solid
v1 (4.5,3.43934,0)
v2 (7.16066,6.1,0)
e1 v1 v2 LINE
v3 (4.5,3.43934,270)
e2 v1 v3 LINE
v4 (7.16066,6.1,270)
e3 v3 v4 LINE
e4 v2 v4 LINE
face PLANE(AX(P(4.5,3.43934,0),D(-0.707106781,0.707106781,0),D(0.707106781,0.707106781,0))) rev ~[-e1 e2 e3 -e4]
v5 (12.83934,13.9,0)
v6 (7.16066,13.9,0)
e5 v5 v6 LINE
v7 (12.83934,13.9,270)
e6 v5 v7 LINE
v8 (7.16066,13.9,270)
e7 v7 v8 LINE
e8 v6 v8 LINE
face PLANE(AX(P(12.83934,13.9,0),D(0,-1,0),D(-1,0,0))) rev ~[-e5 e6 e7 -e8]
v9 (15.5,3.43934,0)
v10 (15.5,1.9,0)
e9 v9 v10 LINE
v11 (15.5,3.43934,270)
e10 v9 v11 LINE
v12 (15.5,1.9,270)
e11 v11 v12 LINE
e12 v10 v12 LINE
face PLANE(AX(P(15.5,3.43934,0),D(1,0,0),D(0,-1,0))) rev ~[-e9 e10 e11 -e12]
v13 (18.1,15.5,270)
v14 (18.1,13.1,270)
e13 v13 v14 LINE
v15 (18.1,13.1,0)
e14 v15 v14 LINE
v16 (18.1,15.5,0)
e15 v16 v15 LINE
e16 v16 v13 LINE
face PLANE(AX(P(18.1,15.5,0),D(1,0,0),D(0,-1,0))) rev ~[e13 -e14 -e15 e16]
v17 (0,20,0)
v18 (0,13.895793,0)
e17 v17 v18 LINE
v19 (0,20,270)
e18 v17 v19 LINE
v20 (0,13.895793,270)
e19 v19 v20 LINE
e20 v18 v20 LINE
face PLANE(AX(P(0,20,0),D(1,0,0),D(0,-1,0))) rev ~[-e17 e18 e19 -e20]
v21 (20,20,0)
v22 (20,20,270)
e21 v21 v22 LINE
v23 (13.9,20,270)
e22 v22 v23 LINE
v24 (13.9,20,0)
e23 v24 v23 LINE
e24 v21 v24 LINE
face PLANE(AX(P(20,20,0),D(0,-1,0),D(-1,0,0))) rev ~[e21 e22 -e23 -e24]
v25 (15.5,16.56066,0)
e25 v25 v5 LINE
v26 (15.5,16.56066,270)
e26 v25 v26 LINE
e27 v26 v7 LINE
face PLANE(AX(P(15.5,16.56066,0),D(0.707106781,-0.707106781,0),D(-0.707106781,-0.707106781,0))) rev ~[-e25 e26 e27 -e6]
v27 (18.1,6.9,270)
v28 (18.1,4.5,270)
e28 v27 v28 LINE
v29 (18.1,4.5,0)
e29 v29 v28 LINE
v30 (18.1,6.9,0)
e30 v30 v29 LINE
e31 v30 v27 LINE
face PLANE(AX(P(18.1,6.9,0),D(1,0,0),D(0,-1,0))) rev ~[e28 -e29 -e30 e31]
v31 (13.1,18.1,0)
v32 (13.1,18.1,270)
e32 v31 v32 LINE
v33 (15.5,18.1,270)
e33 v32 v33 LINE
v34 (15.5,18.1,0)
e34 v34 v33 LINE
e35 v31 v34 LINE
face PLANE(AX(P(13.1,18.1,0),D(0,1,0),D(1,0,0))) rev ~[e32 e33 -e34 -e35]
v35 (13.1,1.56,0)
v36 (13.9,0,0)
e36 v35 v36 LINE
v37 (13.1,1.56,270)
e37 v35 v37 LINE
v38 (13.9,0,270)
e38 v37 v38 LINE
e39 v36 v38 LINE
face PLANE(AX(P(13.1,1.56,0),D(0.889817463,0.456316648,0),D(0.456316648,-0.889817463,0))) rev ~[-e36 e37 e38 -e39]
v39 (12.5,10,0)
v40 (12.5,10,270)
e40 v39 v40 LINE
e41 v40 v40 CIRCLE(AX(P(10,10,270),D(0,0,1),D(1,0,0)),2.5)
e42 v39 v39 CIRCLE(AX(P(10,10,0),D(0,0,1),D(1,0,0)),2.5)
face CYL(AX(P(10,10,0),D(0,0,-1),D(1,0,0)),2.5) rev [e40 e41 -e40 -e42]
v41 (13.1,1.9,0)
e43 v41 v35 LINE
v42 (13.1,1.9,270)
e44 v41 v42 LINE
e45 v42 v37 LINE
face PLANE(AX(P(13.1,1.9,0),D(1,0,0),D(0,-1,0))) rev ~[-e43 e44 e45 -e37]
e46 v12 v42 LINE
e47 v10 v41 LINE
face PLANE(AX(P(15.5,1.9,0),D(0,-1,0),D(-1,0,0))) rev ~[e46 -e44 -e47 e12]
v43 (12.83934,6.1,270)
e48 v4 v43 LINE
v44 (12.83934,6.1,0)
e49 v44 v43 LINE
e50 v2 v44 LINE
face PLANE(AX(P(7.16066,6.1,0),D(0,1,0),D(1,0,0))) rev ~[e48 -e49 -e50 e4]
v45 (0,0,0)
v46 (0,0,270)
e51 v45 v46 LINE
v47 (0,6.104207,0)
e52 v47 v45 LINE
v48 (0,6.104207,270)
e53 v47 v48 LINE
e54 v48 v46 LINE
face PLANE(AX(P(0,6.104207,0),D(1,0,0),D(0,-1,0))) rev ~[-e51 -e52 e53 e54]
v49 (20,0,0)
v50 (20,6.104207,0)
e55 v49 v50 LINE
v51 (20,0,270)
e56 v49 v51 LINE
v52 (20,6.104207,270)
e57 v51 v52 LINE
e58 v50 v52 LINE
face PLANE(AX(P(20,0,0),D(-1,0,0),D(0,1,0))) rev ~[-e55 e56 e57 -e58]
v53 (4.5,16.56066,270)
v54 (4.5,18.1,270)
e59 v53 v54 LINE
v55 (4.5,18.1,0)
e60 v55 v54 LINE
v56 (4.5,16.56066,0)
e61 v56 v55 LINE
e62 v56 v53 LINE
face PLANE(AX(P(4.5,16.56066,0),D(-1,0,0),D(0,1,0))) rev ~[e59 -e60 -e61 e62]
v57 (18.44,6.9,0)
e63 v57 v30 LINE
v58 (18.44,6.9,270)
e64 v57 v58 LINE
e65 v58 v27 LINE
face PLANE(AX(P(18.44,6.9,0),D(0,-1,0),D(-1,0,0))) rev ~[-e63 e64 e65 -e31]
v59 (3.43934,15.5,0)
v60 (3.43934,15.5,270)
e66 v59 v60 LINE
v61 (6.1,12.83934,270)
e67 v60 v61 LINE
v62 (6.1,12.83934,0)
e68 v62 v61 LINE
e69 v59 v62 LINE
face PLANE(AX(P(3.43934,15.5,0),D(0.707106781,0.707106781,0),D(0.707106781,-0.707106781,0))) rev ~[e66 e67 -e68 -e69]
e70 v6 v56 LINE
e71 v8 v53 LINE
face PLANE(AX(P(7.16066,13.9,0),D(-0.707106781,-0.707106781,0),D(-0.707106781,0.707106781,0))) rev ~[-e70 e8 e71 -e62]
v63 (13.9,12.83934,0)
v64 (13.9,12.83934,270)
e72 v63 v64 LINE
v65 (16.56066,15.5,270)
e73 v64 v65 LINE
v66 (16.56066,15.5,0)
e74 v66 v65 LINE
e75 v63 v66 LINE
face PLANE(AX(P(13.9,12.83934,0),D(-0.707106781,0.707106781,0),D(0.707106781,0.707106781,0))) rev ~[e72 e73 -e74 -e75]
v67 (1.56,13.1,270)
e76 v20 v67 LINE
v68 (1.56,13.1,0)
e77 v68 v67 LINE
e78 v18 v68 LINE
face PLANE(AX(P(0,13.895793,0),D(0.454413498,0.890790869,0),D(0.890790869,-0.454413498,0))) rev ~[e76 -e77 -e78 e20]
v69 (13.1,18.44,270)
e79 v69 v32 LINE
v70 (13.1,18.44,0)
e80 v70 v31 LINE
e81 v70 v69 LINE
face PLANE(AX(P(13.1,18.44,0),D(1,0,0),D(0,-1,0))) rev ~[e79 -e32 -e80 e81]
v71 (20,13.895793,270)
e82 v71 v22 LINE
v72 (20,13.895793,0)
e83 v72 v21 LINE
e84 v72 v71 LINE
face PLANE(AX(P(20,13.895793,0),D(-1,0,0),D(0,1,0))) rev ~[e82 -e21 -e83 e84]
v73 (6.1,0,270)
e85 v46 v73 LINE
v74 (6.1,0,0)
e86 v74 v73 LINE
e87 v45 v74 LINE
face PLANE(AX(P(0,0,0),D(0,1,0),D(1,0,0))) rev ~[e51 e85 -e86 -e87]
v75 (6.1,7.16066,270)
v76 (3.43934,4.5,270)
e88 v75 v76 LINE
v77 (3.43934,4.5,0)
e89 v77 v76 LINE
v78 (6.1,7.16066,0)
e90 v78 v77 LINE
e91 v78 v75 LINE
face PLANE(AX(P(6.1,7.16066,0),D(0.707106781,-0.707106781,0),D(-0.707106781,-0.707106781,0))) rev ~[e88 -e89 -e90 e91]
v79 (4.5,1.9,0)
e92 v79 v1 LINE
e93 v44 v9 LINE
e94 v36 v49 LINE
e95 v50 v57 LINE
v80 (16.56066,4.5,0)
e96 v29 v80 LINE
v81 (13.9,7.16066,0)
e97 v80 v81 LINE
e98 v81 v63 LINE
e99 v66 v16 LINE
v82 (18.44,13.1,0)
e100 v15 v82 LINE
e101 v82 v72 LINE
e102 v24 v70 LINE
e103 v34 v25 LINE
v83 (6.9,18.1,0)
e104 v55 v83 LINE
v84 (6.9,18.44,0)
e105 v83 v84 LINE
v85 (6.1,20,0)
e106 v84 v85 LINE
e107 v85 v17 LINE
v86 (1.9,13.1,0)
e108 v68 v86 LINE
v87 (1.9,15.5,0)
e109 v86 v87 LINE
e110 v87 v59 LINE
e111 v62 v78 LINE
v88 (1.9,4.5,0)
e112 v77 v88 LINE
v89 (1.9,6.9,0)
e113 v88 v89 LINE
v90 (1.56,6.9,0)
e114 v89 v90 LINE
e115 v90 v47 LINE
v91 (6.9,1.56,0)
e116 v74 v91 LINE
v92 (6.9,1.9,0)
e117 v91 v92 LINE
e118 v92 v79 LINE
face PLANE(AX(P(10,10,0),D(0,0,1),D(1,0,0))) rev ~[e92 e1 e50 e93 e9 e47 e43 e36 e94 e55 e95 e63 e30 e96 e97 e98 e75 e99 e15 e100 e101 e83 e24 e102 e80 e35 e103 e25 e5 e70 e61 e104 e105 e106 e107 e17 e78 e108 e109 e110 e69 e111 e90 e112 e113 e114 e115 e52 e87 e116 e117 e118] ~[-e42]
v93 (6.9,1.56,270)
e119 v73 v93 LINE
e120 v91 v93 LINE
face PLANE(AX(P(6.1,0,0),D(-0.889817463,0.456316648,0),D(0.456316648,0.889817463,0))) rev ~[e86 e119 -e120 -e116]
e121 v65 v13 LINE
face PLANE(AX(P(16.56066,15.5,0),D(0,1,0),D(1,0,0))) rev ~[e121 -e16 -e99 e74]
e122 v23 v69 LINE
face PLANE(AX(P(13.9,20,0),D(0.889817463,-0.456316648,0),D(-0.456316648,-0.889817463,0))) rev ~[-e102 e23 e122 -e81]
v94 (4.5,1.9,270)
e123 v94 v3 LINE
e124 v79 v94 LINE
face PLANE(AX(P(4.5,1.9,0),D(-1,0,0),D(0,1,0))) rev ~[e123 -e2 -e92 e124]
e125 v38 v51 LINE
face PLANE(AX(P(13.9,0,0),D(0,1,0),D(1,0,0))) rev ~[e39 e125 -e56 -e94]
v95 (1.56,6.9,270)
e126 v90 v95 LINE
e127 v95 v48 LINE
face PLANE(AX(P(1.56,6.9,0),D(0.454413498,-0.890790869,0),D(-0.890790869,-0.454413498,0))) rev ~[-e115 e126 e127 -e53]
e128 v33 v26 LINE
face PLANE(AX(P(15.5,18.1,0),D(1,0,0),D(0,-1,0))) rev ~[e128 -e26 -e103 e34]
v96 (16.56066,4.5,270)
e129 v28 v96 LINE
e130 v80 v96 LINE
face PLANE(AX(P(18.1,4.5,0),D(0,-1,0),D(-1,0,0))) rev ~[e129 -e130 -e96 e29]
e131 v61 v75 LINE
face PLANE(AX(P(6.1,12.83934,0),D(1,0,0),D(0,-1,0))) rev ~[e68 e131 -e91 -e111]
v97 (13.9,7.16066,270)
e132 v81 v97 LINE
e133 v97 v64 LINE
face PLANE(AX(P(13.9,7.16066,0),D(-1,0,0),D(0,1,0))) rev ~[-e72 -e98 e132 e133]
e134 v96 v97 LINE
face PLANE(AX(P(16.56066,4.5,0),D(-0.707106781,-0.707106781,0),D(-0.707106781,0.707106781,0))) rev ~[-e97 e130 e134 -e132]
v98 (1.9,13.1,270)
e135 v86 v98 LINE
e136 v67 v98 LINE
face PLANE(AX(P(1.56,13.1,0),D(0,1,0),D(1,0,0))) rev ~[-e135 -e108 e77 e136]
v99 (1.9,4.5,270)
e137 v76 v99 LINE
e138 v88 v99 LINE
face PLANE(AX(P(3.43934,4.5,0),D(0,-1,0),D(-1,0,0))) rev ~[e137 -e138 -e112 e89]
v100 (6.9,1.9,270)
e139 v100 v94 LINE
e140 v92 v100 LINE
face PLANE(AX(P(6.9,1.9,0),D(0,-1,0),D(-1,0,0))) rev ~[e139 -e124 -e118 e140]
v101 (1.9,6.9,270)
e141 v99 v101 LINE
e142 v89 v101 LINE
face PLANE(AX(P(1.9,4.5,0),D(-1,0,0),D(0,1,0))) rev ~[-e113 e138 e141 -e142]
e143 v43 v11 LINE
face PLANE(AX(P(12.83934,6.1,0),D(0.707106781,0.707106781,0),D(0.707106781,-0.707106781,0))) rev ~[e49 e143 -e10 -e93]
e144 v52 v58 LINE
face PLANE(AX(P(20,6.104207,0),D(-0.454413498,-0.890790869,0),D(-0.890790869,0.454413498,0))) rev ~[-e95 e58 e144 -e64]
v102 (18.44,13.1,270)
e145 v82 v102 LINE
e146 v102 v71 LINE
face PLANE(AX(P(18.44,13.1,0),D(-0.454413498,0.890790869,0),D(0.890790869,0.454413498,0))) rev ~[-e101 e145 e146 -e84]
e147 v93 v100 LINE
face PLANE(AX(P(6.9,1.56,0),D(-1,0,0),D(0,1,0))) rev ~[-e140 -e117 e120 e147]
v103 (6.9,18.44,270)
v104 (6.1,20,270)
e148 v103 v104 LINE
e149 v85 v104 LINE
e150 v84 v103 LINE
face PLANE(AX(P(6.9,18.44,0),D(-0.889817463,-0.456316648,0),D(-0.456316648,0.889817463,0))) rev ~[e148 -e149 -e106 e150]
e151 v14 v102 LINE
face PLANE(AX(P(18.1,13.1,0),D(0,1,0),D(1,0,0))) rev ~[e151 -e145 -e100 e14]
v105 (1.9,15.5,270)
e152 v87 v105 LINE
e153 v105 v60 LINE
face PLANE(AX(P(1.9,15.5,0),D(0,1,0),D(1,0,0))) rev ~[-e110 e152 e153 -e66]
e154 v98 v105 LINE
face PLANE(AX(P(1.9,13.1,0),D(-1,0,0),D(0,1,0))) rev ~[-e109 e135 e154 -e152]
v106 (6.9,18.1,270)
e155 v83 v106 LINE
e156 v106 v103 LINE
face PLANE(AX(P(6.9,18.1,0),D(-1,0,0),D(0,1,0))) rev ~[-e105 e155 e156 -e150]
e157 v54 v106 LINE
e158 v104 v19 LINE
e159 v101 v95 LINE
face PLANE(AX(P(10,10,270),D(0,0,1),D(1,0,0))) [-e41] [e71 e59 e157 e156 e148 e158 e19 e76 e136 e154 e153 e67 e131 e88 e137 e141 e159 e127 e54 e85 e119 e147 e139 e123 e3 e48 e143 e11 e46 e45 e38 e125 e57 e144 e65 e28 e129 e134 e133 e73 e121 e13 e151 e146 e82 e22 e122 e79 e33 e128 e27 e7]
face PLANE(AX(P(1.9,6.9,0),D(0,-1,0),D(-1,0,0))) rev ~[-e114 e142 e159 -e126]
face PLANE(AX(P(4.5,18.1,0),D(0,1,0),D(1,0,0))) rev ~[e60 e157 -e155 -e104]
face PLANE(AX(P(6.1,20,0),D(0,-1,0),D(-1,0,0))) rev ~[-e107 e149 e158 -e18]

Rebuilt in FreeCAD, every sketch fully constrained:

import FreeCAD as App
import Part
import Sketcher

V = App.Vector

doc = App.newDocument("Part")
body = doc.addObject("PartDesign::Body", "Body")

# Sketch on XY plane
sketch1 = doc.addObject("Sketcher::SketchObject", "Sketch")
body.addObject(sketch1)
sketch1.AttachmentSupport = (doc.XY_Plane, [""])
sketch1.MapMode = "FlatFace"
sketch1.addGeometry([
    Part.LineSegment(V(6.1, 20, 0), V(0, 20, 0)),  # 0
    Part.LineSegment(V(0, 20, 0), V(0, 13.9, 0)),  # 1
    Part.LineSegment(V(0, 13.9, 0), V(1.56, 13.1, 0)),  # 2
    Part.LineSegment(V(1.56, 13.1, 0), V(1.9, 13.1, 0)),  # 3
    Part.LineSegment(V(1.9, 13.1, 0), V(1.9, 15.5, 0)),  # 4
    Part.LineSegment(V(1.9, 15.5, 0), V(3.44, 15.5, 0)),  # 5
    Part.LineSegment(V(3.44, 15.5, 0), V(6.1, 12.84, 0)),  # 6
    Part.LineSegment(V(6.1, 12.84, 0), V(6.1, 7.16, 0)),  # 7
    Part.LineSegment(V(6.1, 7.16, 0), V(3.44, 4.5, 0)),  # 8
    Part.LineSegment(V(3.44, 4.5, 0), V(1.9, 4.5, 0)),  # 9
    Part.LineSegment(V(1.9, 4.5, 0), V(1.9, 6.9, 0)),  # 10
    Part.LineSegment(V(1.9, 6.9, 0), V(1.56, 6.9, 0)),  # 11
    Part.LineSegment(V(1.56, 6.9, 0), V(0, 6.1, 0)),  # 12
    Part.LineSegment(V(0, 6.1, 0), V(0, 0, 0)),  # 13
    Part.LineSegment(V(0, 0, 0), V(6.1, 0, 0)),  # 14
    Part.LineSegment(V(6.1, 0, 0), V(6.9, 1.56, 0)),  # 15
    Part.LineSegment(V(6.9, 1.56, 0), V(6.9, 1.9, 0)),  # 16
    Part.LineSegment(V(6.9, 1.9, 0), V(4.5, 1.9, 0)),  # 17
    Part.LineSegment(V(4.5, 1.9, 0), V(4.5, 3.44, 0)),  # 18
    Part.LineSegment(V(4.5, 3.44, 0), V(7.16, 6.1, 0)),  # 19
    Part.LineSegment(V(7.16, 6.1, 0), V(12.84, 6.1, 0)),  # 20
    Part.LineSegment(V(12.84, 6.1, 0), V(15.5, 3.44, 0)),  # 21
    Part.LineSegment(V(15.5, 3.44, 0), V(15.5, 1.9, 0)),  # 22
    Part.LineSegment(V(15.5, 1.9, 0), V(13.1, 1.9, 0)),  # 23
    Part.LineSegment(V(13.1, 1.9, 0), V(13.1, 1.56, 0)),  # 24
    Part.LineSegment(V(13.1, 1.56, 0), V(13.9, 0, 0)),  # 25
    Part.LineSegment(V(13.9, 0, 0), V(20, 0, 0)),  # 26
    Part.LineSegment(V(20, 0, 0), V(20, 6.1, 0)),  # 27
    Part.LineSegment(V(20, 6.1, 0), V(18.44, 6.9, 0)),  # 28
    Part.LineSegment(V(18.44, 6.9, 0), V(18.1, 6.9, 0)),  # 29
    Part.LineSegment(V(18.1, 6.9, 0), V(18.1, 4.5, 0)),  # 30
    Part.LineSegment(V(18.1, 4.5, 0), V(16.56, 4.5, 0)),  # 31
    Part.LineSegment(V(16.56, 4.5, 0), V(13.9, 7.16, 0)),  # 32
    Part.LineSegment(V(13.9, 7.16, 0), V(13.9, 12.84, 0)),  # 33
    Part.LineSegment(V(13.9, 12.84, 0), V(16.56, 15.5, 0)),  # 34
    Part.LineSegment(V(16.56, 15.5, 0), V(18.1, 15.5, 0)),  # 35
    Part.LineSegment(V(18.1, 15.5, 0), V(18.1, 13.1, 0)),  # 36
    Part.LineSegment(V(18.1, 13.1, 0), V(18.44, 13.1, 0)),  # 37
    Part.LineSegment(V(18.44, 13.1, 0), V(20, 13.9, 0)),  # 38
    Part.LineSegment(V(20, 13.9, 0), V(20, 20, 0)),  # 39
    Part.LineSegment(V(20, 20, 0), V(13.9, 20, 0)),  # 40
    Part.LineSegment(V(13.9, 20, 0), V(13.1, 18.44, 0)),  # 41
    Part.LineSegment(V(13.1, 18.44, 0), V(13.1, 18.1, 0)),  # 42
    Part.LineSegment(V(13.1, 18.1, 0), V(15.5, 18.1, 0)),  # 43
    Part.LineSegment(V(15.5, 18.1, 0), V(15.5, 16.56, 0)),  # 44
    Part.LineSegment(V(15.5, 16.56, 0), V(12.84, 13.9, 0)),  # 45
    Part.LineSegment(V(12.84, 13.9, 0), V(7.16, 13.9, 0)),  # 46
    Part.LineSegment(V(7.16, 13.9, 0), V(4.5, 16.56, 0)),  # 47
    Part.LineSegment(V(4.5, 16.56, 0), V(4.5, 18.1, 0)),  # 48
    Part.LineSegment(V(4.5, 18.1, 0), V(6.9, 18.1, 0)),  # 49
    Part.LineSegment(V(6.9, 18.1, 0), V(6.9, 18.44, 0)),  # 50
    Part.LineSegment(V(6.9, 18.44, 0), V(6.1, 20, 0)),  # 51
    Part.Circle(V(10, 10, 0), V(0, 0, 1), 2.5),  # 52
], False)
sketch1.addConstraint([
    Sketcher.Constraint("Coincident", 0, 2, 1, 1),
    Sketcher.Constraint("Coincident", 1, 2, 2, 1),
    Sketcher.Constraint("Coincident", 2, 2, 3, 1),
    Sketcher.Constraint("Coincident", 3, 2, 4, 1),
    Sketcher.Constraint("Coincident", 4, 2, 5, 1),
    Sketcher.Constraint("Coincident", 5, 2, 6, 1),
    Sketcher.Constraint("Coincident", 6, 2, 7, 1),
    Sketcher.Constraint("Coincident", 7, 2, 8, 1),
    Sketcher.Constraint("Coincident", 8, 2, 9, 1),
    Sketcher.Constraint("Coincident", 9, 2, 10, 1),
    Sketcher.Constraint("Coincident", 10, 2, 11, 1),
    Sketcher.Constraint("Coincident", 11, 2, 12, 1),
    Sketcher.Constraint("Coincident", 12, 2, 13, 1),
    Sketcher.Constraint("Coincident", 13, 2, 14, 1),
    Sketcher.Constraint("Coincident", 14, 2, 15, 1),
    Sketcher.Constraint("Coincident", 15, 2, 16, 1),
    Sketcher.Constraint("Coincident", 16, 2, 17, 1),
    Sketcher.Constraint("Coincident", 17, 2, 18, 1),
    Sketcher.Constraint("Coincident", 18, 2, 19, 1),
    Sketcher.Constraint("Coincident", 19, 2, 20, 1),
    Sketcher.Constraint("Coincident", 20, 2, 21, 1),
    Sketcher.Constraint("Coincident", 21, 2, 22, 1),
    Sketcher.Constraint("Coincident", 22, 2, 23, 1),
    Sketcher.Constraint("Coincident", 23, 2, 24, 1),
    Sketcher.Constraint("Coincident", 24, 2, 25, 1),
    Sketcher.Constraint("Coincident", 25, 2, 26, 1),
    Sketcher.Constraint("Coincident", 26, 2, 27, 1),
    Sketcher.Constraint("Coincident", 27, 2, 28, 1),
    Sketcher.Constraint("Coincident", 28, 2, 29, 1),
    Sketcher.Constraint("Coincident", 29, 2, 30, 1),
    Sketcher.Constraint("Coincident", 30, 2, 31, 1),
    Sketcher.Constraint("Coincident", 31, 2, 32, 1),
    Sketcher.Constraint("Coincident", 32, 2, 33, 1),
    Sketcher.Constraint("Coincident", 33, 2, 34, 1),
    Sketcher.Constraint("Coincident", 34, 2, 35, 1),
    Sketcher.Constraint("Coincident", 35, 2, 36, 1),
    Sketcher.Constraint("Coincident", 36, 2, 37, 1),
    Sketcher.Constraint("Coincident", 37, 2, 38, 1),
    Sketcher.Constraint("Coincident", 38, 2, 39, 1),
    Sketcher.Constraint("Coincident", 39, 2, 40, 1),
    Sketcher.Constraint("Coincident", 40, 2, 41, 1),
    Sketcher.Constraint("Coincident", 41, 2, 42, 1),
    Sketcher.Constraint("Coincident", 42, 2, 43, 1),
    Sketcher.Constraint("Coincident", 43, 2, 44, 1),
    Sketcher.Constraint("Coincident", 44, 2, 45, 1),
    Sketcher.Constraint("Coincident", 45, 2, 46, 1),
    Sketcher.Constraint("Coincident", 46, 2, 47, 1),
    Sketcher.Constraint("Coincident", 47, 2, 48, 1),
    Sketcher.Constraint("Coincident", 48, 2, 49, 1),
    Sketcher.Constraint("Coincident", 49, 2, 50, 1),
    Sketcher.Constraint("Coincident", 50, 2, 51, 1),
    Sketcher.Constraint("Coincident", 51, 2, 0, 1),
    Sketcher.Constraint("Horizontal", 0),
    Sketcher.Constraint("Vertical", 1),
    Sketcher.Constraint("Horizontal", 3),
    Sketcher.Constraint("Vertical", 4),
    Sketcher.Constraint("Horizontal", 5),
    Sketcher.Constraint("Vertical", 7),
    Sketcher.Constraint("Horizontal", 9),
    Sketcher.Constraint("Vertical", 10),
    Sketcher.Constraint("Horizontal", 11),
    Sketcher.Constraint("Vertical", 13),
    Sketcher.Constraint("Horizontal", 14),
    Sketcher.Constraint("Vertical", 16),
    Sketcher.Constraint("Horizontal", 17),
    Sketcher.Constraint("Vertical", 18),
    Sketcher.Constraint("Horizontal", 20),
    Sketcher.Constraint("Vertical", 22),
    Sketcher.Constraint("Horizontal", 23),
    Sketcher.Constraint("Vertical", 24),
    Sketcher.Constraint("Horizontal", 26),
    Sketcher.Constraint("Vertical", 27),
    Sketcher.Constraint("Horizontal", 29),
    Sketcher.Constraint("Vertical", 30),
    Sketcher.Constraint("Horizontal", 31),
    Sketcher.Constraint("Vertical", 33),
    Sketcher.Constraint("Horizontal", 35),
    Sketcher.Constraint("Vertical", 36),
    Sketcher.Constraint("Horizontal", 37),
    Sketcher.Constraint("Vertical", 39),
    Sketcher.Constraint("Horizontal", 40),
    Sketcher.Constraint("Vertical", 42),
    Sketcher.Constraint("Horizontal", 43),
    Sketcher.Constraint("Vertical", 44),
    Sketcher.Constraint("Horizontal", 46),
    Sketcher.Constraint("Vertical", 48),
    Sketcher.Constraint("Horizontal", 49),
    Sketcher.Constraint("Vertical", 50),
    Sketcher.Constraint("Coincident", 13, 2, -1, 1),
    Sketcher.Constraint("PointOnObject", 0, 2, -2),
    Sketcher.Constraint("PointOnObject", 25, 2, -1),
    Sketcher.Constraint("Perpendicular", 6, 8),
    Sketcher.Constraint("Parallel", 8, 19),
    Sketcher.Constraint("Perpendicular", 19, 21),
    Sketcher.Constraint("Parallel", 2, 28),
    Sketcher.Constraint("Parallel", 21, 32),
    Sketcher.Constraint("Perpendicular", 32, 34),
    Sketcher.Constraint("Parallel", 12, 38),
    Sketcher.Constraint("Parallel", 15, 41),
    Sketcher.Constraint("Parallel", 34, 45),
    Sketcher.Constraint("Perpendicular", 45, 47),
    Sketcher.Constraint("Parallel", 25, 51),
    Sketcher.Constraint("Horizontal", 18, 2, 21, 2),
    Sketcher.Constraint("Horizontal", 17, 2, 22, 2),
    Sketcher.Constraint("Horizontal", 15, 2, 24, 2),
    Sketcher.Constraint("Horizontal", 12, 2, 27, 2),
    Sketcher.Constraint("Horizontal", 11, 2, 28, 2),
    Sketcher.Constraint("Horizontal", 9, 2, 30, 2),
    Sketcher.Constraint("Horizontal", 7, 2, 32, 2),
    Sketcher.Constraint("Horizontal", 6, 2, 33, 2),
    Sketcher.Constraint("Horizontal", 5, 2, 34, 2),
    Sketcher.Constraint("Horizontal", 3, 2, 36, 2),
    Sketcher.Constraint("Horizontal", 1, 2, 38, 2),
    Sketcher.Constraint("Horizontal", 0, 2, 39, 2),
    Sketcher.Constraint("Horizontal", 44, 2, 47, 2),
    Sketcher.Constraint("Horizontal", 43, 2, 48, 2),
    Sketcher.Constraint("Horizontal", 41, 2, 50, 2),
    Sketcher.Constraint("Vertical", 5, 2, 8, 2),
    Sketcher.Constraint("Vertical", 4, 2, 9, 2),
    Sketcher.Constraint("Vertical", 2, 2, 11, 2),
    Sketcher.Constraint("Vertical", 7, 2, 14, 2),
    Sketcher.Constraint("Vertical", 25, 2, 32, 2),
    Sketcher.Constraint("Vertical", 31, 2, 34, 2),
    Sketcher.Constraint("Vertical", 30, 2, 35, 2),
    Sketcher.Constraint("Vertical", 28, 2, 37, 2),
    Sketcher.Constraint("Vertical", 27, 2, 38, 2),
    Sketcher.Constraint("Vertical", 33, 2, 40, 2),
    Sketcher.Constraint("Vertical", 24, 2, 41, 2),
    Sketcher.Constraint("Vertical", 22, 2, 43, 2),
    Sketcher.Constraint("Vertical", 20, 2, 45, 2),
    Sketcher.Constraint("Vertical", 19, 2, 46, 2),
    Sketcher.Constraint("Vertical", 16, 2, 49, 2),
    Sketcher.Constraint("Vertical", 14, 2, 51, 2),
    Sketcher.Constraint("Equal", 17, 23),
    Sketcher.Constraint("Equal", 14, 26),
    Sketcher.Constraint("Equal", 11, 29),
    Sketcher.Constraint("Equal", 49, 4),
    Sketcher.Constraint("Equal", 46, 7),
    Sketcher.Constraint("Equal", 4, 10),
    Sketcher.Constraint("Equal", 1, 13),
    Sketcher.Constraint("Equal", 37, 16),
    Sketcher.Constraint("Equal", 35, 18),
    Sketcher.Constraint("Equal", 24, 42),
    Sketcher.Constraint("Equal", 22, 44),
    Sketcher.Constraint("Equal", 8, 19),
    Sketcher.Constraint("Diameter", 52, 5.0),
    Sketcher.Constraint("DistanceX", 0, 2, 0, 1, 6.1),
    Sketcher.Constraint("DistanceX", 17, 2, 17, 1, 2.4),
    Sketcher.Constraint("DistanceX", -1, 1, 52, 3, 10.0),
    Sketcher.Constraint("DistanceY", -1, 1, 52, 3, 10.0),
    Sketcher.Constraint("DistanceY", -1, 1, 0, 2, 20.0),
    Sketcher.Constraint("DistanceX", -1, 1, 26, 2, 20.0),
    Sketcher.Constraint("DistanceX", 9, 2, 15, 2, 5.0),
    Sketcher.Constraint("DistanceY", 22, 2, 28, 2, 5.0),
    Sketcher.Constraint("DistanceX", 3, 1, 3, 2, 0.34),
    Sketcher.Constraint("DistanceY", -1, 1, 2, 2, 13.1),
    Sketcher.Constraint("DistanceX", 5, 1, 5, 2, 1.53934),
    Sketcher.Constraint("DistanceY", 1, 2, 1, 1, 6.104207),
])
pad1 = doc.addObject("PartDesign::Pad", "Pad")
body.addObject(pad1)
pad1.Profile = sketch1
pad1.Length = 270

doc.recompute()
